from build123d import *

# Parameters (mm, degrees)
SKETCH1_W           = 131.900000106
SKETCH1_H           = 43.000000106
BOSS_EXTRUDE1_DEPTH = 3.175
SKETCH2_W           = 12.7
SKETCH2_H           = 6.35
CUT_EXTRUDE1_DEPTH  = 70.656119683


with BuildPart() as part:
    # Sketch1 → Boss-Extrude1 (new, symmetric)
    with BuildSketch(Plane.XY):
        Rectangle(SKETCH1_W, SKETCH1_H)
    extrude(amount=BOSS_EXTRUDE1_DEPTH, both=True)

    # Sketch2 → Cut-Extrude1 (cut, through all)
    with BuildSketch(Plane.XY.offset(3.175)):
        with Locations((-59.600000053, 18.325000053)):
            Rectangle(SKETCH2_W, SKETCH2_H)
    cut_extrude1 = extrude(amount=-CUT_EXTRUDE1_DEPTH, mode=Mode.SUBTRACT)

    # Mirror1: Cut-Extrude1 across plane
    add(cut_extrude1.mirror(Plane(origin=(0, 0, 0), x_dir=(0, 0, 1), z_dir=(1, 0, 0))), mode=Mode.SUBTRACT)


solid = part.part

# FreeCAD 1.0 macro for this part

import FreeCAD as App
import Part
import Sketcher

V = App.Vector
Q = App.Units.Quantity

doc = App.newDocument("Part")
params = doc.addObject("Spreadsheet::Sheet", "Params")
for row, (alias, value) in enumerate([
    ("pad1_length", "0.25 in"),
    ("sketch2_width", "0.5 in"),
    ("sketch2_height", "0.25 in"),
], start=1):
    params.set(f"A{row}", alias)
    params.set(f"B{row}", "=" + value)
    params.setAlias(f"B{row}", alias)

body = doc.addObject("PartDesign::Body", "Body")

sketch1 = doc.addObject("Sketcher::SketchObject", "Sketch")
body.addObject(sketch1)
sketch1.AttachmentSupport = (doc.XY_Plane, [""])
sketch1.MapMode = "FlatFace"
sketch1.addGeometry([
    Part.LineSegment(V(-66, 22, 0), V(-66, -22, 0)),
    Part.LineSegment(V(-66, -22, 0), V(66, -22, 0)),
    Part.LineSegment(V(66, -22, 0), V(66, 22, 0)),
    Part.LineSegment(V(66, 22, 0), V(-66, 22, 0)),
], False)
sketch1.addConstraint([
    Sketcher.Constraint("Coincident", 0, 2, 1, 1),
    Sketcher.Constraint("Coincident", 1, 2, 2, 1),
    Sketcher.Constraint("Coincident", 2, 2, 3, 1),
    Sketcher.Constraint("Coincident", 3, 2, 0, 1),
    Sketcher.Constraint("Vertical", 0),
    Sketcher.Constraint("Horizontal", 1),
    Sketcher.Constraint("Vertical", 2),
    Sketcher.Constraint("Horizontal", 3),
    Sketcher.Constraint("Symmetric", 0, 2, 2, 2, -1, 1),
    Sketcher.Constraint("DistanceX", 1, 1, 1, 2, Q("131.9 mm")),
    Sketcher.Constraint("DistanceY", 0, 2, 0, 1, Q("43 mm")),
])
pad1 = doc.addObject("PartDesign::Pad", "Pad")
body.addObject(pad1)
pad1.Profile = sketch1
pad1.setExpression("Length", "Params.pad1_length")
pad1.Midplane = True

sketch2 = doc.addObject("Sketcher::SketchObject", "Sketch001")
body.addObject(sketch2)
sketch2.AttachmentSupport = (doc.XY_Plane, [""])
sketch2.MapMode = "FlatFace"
sketch2.AttachmentOffset = App.Placement(V(0, 0, 0.125 * 25.4), App.Rotation())
sketch2.addGeometry([
    Part.LineSegment(V(-66, 22, 0), V(-66, 15, 0)),
    Part.LineSegment(V(-66, 15, 0), V(-53, 15, 0)),
    Part.LineSegment(V(-53, 15, 0), V(-53, 22, 0)),
    Part.LineSegment(V(-53, 22, 0), V(-66, 22, 0)),
], False)
sketch2.addConstraint([
    Sketcher.Constraint("Coincident", 0, 2, 1, 1),
    Sketcher.Constraint("Coincident", 1, 2, 2, 1),
    Sketcher.Constraint("Coincident", 2, 2, 3, 1),
    Sketcher.Constraint("Coincident", 3, 2, 0, 1),
    Sketcher.Constraint("Vertical", 0),
    Sketcher.Constraint("Horizontal", 1),
    Sketcher.Constraint("Vertical", 2),
    Sketcher.Constraint("Horizontal", 3),
    Sketcher.Constraint("DistanceX", 1, 1, 1, 2, Q("0.5 in")),
    Sketcher.Constraint("DistanceY", 0, 2, 0, 1, Q("0.25 in")),
    Sketcher.Constraint("DistanceX", 0, 2, -1, 1, Q("65.95 mm")),
    Sketcher.Constraint("DistanceY", -1, 1, 0, 2, Q("15.15 mm")),
])
sketch2.setExpression("Constraints[8]", "Params.sketch2_width")
sketch2.setExpression("Constraints[9]", "Params.sketch2_height")
pocket1 = doc.addObject("PartDesign::Pocket", "Pocket")
body.addObject(pocket1)
pocket1.Profile = sketch2
pocket1.Type = "ThroughAll"
doc.recompute()

mirrored = doc.addObject("PartDesign::Mirrored", "Mirrored")
body.addObject(mirrored)
mirrored.Originals = [pocket1]
mirrored.MirrorPlane = (doc.YZ_Plane, [""])
body.Tip = mirrored

doc.recompute()
